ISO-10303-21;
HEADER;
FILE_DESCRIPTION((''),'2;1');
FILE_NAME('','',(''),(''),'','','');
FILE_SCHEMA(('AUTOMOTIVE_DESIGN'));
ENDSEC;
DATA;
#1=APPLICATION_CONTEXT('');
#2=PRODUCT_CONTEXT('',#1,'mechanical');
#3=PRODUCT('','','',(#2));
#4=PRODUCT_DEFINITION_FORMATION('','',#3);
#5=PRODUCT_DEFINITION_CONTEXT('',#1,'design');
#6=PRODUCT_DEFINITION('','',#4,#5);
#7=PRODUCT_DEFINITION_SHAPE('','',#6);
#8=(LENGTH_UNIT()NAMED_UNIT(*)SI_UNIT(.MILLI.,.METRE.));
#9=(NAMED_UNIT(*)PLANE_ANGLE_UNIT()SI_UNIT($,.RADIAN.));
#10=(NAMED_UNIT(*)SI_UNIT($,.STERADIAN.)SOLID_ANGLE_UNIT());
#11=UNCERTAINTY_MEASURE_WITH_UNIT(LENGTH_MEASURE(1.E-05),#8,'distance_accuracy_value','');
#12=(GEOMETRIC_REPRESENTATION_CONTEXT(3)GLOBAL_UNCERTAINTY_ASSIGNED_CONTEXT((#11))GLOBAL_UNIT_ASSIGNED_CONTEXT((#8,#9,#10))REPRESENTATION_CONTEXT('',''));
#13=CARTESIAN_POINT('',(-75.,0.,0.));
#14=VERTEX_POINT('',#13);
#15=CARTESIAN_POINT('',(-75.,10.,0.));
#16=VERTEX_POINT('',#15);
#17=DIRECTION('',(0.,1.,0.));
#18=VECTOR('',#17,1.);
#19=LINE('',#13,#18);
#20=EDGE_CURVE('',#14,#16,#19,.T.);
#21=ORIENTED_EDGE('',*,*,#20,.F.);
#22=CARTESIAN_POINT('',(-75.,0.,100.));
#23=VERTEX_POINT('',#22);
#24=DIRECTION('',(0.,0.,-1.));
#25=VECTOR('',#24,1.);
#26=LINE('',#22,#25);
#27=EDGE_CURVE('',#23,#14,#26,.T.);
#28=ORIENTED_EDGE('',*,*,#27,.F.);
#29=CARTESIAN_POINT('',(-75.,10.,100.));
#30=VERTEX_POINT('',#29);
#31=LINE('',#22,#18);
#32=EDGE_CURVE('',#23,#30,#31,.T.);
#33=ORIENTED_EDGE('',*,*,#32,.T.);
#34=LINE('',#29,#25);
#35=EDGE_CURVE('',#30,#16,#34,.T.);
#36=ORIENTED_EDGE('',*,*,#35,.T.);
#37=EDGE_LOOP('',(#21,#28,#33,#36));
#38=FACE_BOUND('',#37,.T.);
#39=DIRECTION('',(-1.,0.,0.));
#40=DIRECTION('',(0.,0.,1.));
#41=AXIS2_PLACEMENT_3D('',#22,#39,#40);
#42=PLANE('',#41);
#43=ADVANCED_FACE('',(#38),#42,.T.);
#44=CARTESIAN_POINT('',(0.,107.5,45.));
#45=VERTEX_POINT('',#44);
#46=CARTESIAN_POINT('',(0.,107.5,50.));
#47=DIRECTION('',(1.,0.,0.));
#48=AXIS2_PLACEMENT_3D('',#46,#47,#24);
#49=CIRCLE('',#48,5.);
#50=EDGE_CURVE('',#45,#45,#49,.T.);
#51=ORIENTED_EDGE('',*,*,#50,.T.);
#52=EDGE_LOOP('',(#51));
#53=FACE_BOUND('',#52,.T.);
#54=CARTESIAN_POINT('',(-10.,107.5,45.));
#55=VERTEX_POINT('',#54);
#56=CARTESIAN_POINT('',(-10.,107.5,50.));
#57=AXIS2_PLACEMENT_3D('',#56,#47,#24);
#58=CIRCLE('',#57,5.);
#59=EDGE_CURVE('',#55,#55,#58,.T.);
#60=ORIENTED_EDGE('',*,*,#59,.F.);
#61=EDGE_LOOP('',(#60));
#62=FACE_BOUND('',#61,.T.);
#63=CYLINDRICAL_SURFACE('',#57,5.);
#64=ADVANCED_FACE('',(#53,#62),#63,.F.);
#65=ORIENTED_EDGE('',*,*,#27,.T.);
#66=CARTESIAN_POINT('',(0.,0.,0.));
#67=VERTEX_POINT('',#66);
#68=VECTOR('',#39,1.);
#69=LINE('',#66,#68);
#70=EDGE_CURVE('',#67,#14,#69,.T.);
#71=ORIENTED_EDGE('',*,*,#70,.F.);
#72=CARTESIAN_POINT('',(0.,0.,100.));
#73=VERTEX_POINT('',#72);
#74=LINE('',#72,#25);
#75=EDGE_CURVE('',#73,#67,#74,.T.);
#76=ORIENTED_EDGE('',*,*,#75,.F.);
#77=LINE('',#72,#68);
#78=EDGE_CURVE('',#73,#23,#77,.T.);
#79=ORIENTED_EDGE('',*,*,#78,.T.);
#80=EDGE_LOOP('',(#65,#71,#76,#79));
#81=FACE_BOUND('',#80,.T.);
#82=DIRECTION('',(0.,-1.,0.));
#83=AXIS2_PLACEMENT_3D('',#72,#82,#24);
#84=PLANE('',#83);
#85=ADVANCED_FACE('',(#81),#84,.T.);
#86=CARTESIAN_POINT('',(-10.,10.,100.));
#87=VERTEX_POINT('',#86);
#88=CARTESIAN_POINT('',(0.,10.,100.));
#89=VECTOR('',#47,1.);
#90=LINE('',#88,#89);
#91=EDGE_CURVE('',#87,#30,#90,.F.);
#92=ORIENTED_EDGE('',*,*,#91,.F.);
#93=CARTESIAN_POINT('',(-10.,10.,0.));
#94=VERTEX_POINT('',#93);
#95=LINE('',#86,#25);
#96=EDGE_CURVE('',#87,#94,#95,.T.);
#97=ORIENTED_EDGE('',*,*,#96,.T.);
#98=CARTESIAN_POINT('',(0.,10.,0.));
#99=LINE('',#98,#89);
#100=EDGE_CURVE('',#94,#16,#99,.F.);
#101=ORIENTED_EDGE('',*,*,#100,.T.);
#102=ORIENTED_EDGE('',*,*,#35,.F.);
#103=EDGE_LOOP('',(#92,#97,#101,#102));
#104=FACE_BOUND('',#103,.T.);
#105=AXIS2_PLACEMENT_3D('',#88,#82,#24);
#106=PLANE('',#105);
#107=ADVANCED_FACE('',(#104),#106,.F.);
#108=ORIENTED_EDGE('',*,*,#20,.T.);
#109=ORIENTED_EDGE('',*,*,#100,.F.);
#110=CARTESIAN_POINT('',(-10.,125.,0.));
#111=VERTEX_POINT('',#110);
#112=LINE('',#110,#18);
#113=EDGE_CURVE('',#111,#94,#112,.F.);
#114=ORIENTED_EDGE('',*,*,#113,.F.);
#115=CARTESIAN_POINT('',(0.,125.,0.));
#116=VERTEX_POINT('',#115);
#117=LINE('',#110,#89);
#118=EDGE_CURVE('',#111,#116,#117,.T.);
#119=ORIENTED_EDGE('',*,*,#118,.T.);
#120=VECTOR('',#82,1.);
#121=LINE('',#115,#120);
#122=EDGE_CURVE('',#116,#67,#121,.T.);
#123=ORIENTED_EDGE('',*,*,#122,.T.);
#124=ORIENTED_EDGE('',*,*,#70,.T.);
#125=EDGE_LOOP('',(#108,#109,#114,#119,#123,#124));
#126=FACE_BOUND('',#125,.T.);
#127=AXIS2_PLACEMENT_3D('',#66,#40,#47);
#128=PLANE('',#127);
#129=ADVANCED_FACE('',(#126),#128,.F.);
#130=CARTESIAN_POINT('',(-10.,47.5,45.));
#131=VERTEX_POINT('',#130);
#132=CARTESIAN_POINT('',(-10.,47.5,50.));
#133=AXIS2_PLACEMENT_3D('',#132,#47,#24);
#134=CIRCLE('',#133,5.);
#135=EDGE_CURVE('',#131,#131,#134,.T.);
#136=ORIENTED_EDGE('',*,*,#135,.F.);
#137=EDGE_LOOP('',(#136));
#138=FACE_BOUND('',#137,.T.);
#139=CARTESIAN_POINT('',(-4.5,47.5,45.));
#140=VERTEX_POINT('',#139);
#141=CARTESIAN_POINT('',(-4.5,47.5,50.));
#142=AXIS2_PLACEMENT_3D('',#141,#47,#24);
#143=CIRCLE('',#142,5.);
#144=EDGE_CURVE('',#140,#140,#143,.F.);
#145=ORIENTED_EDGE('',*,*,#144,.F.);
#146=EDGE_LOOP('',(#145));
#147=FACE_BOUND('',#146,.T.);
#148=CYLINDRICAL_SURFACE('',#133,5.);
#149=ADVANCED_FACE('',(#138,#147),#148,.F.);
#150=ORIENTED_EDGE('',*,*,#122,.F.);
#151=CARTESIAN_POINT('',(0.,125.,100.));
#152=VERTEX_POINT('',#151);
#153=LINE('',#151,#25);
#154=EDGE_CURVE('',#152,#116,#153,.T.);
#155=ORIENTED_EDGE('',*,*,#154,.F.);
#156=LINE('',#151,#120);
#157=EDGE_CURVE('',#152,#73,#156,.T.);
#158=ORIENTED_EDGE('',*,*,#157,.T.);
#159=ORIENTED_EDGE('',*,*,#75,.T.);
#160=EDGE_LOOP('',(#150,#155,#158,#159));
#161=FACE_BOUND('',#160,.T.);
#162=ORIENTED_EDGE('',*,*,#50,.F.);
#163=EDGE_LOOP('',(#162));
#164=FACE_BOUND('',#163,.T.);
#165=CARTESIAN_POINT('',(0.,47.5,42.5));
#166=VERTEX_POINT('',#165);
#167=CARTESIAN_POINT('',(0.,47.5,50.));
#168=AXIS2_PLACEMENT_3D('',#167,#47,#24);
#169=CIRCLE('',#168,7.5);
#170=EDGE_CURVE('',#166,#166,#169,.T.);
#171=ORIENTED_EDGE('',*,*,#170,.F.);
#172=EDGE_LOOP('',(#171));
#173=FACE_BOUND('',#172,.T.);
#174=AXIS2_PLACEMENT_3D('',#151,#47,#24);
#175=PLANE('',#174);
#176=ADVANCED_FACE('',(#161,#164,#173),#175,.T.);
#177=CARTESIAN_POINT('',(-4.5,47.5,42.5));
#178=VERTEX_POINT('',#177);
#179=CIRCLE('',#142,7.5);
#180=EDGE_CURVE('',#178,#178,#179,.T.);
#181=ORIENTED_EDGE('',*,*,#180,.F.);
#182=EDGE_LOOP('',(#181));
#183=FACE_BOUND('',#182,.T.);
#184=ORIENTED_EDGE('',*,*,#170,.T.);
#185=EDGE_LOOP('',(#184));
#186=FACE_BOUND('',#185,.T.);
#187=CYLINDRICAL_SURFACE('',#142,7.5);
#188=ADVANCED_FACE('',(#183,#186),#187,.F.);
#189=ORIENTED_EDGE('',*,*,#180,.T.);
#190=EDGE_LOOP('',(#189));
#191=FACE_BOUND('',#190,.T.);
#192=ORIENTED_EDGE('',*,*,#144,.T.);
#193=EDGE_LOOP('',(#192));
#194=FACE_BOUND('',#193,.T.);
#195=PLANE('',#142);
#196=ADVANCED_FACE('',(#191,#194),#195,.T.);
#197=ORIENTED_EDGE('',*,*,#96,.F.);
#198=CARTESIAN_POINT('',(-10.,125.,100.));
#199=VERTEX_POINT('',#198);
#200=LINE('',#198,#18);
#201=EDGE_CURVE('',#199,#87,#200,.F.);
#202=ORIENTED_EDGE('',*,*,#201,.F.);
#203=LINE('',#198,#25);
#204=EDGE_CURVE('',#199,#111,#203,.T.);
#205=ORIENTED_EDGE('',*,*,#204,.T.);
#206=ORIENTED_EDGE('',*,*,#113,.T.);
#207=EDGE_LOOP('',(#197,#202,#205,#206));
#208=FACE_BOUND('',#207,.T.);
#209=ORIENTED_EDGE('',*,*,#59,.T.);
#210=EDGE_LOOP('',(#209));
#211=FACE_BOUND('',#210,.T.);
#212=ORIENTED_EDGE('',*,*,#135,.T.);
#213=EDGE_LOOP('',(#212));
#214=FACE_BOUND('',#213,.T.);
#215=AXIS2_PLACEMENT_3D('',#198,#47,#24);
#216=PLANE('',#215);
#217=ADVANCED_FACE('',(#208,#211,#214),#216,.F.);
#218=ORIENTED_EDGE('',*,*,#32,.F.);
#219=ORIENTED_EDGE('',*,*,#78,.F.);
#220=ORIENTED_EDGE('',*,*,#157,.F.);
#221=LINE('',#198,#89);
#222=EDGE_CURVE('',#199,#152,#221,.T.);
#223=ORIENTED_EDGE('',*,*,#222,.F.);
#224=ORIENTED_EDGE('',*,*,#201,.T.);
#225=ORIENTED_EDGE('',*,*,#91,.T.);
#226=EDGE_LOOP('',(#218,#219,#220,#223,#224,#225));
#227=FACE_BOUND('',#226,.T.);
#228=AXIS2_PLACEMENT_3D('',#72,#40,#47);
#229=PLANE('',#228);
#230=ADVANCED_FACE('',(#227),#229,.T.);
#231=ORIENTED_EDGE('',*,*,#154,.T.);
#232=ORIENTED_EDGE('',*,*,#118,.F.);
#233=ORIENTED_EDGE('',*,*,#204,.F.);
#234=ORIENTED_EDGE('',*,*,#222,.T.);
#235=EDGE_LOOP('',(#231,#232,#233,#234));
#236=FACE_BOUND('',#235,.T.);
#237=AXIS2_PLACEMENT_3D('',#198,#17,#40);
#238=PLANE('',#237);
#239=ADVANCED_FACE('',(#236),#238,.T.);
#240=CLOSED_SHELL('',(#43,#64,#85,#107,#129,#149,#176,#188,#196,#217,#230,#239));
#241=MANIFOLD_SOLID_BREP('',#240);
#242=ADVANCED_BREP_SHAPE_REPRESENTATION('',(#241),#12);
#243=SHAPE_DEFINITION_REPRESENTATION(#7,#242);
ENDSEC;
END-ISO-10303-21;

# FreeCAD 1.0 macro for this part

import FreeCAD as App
import Part
import Sketcher

V = App.Vector

doc = App.newDocument("Part")
body = doc.addObject("PartDesign::Body", "Body")

# Sketch on XY plane
sketch1 = doc.addObject("Sketcher::SketchObject", "Sketch")
body.addObject(sketch1)
sketch1.AttachmentSupport = (doc.XY_Plane, [""])
sketch1.MapMode = "FlatFace"
sketch1.addGeometry([
    Part.LineSegment(V(0, 0, 0), V(0, 125, 0)),  # 0
    Part.LineSegment(V(0, 125, 0), V(-10, 125, 0)),  # 1
    Part.LineSegment(V(-10, 125, 0), V(-10, 10, 0)),  # 2
    Part.LineSegment(V(-10, 10, 0), V(-75, 10, 0)),  # 3
    Part.LineSegment(V(-75, 10, 0), V(-75, 0, 0)),  # 4
    Part.LineSegment(V(-75, 0, 0), V(0, 0, 0)),  # 5
], False)
sketch1.addConstraint([
    Sketcher.Constraint("Coincident", 0, 2, 1, 1),
    Sketcher.Constraint("Coincident", 1, 2, 2, 1),
    Sketcher.Constraint("Coincident", 2, 2, 3, 1),
    Sketcher.Constraint("Coincident", 3, 2, 4, 1),
    Sketcher.Constraint("Coincident", 4, 2, 5, 1),
    Sketcher.Constraint("Coincident", 5, 2, 0, 1),
    Sketcher.Constraint("Vertical", 0),
    Sketcher.Constraint("Horizontal", 1),
    Sketcher.Constraint("Vertical", 2),
    Sketcher.Constraint("Horizontal", 3),
    Sketcher.Constraint("Vertical", 4),
    Sketcher.Constraint("Horizontal", 5),
    Sketcher.Constraint("Coincident", 5, 2, -1, 1),
    Sketcher.Constraint("Equal", 1, 4),
    Sketcher.Constraint("DistanceX", 1, 2, 1, 1, 10.0),
    Sketcher.Constraint("DistanceX", 3, 2, 3, 1, 65.0),
    Sketcher.Constraint("DistanceY", 0, 1, 0, 2, 125.0),
])
pad1 = doc.addObject("PartDesign::Pad", "Pad")
body.addObject(pad1)
pad1.Profile = sketch1
pad1.Length = 100

# Sketch on YZ plane
sketch2 = doc.addObject("Sketcher::SketchObject", "Sketch001")
body.addObject(sketch2)
sketch2.AttachmentSupport = (doc.YZ_Plane, [""])
sketch2.MapMode = "FlatFace"
sketch2.addGeometry([
    Part.Circle(V(107.5, 50, 0), V(0, 0, 1), 5),
    Part.Circle(V(47.5, 50, 0), V(0, 0, 1), 5),
], False)
sketch2.addConstraint([
    Sketcher.Constraint("Equal", 0, 1),
    Sketcher.Constraint("Horizontal", 0, 3, 1, 3),
    Sketcher.Constraint("Diameter", 0, 10.0),
    Sketcher.Constraint("DistanceY", -1, 1, 0, 3, 50.0),
    Sketcher.Constraint("DistanceX", 1, 3, 0, 3, 60.0),
    Sketcher.Constraint("DistanceX", -1, 1, 0, 3, 107.5),
])
pocket1 = doc.addObject("PartDesign::Pocket", "Pocket")
body.addObject(pocket1)
pocket1.Profile = sketch2
pocket1.Length = 10

# Sketch on YZ plane
sketch3 = doc.addObject("Sketcher::SketchObject", "Sketch002")
body.addObject(sketch3)
sketch3.AttachmentSupport = (doc.YZ_Plane, [""])
sketch3.MapMode = "FlatFace"
sketch3.addGeometry(Part.Circle(V(47.5, 50, 0), V(0, 0, 1), 7.5), False)
sketch3.addConstraint([
    Sketcher.Constraint("Diameter", 0, 15.0),
    Sketcher.Constraint("DistanceY", -1, 1, 0, 3, 50.0),
    Sketcher.Constraint("DistanceX", -1, 1, 0, 3, 47.5),
])
pocket2 = doc.addObject("PartDesign::Pocket", "Pocket001")
body.addObject(pocket2)
pocket2.Profile = sketch3
pocket2.Length = 4.5

doc.recompute()
